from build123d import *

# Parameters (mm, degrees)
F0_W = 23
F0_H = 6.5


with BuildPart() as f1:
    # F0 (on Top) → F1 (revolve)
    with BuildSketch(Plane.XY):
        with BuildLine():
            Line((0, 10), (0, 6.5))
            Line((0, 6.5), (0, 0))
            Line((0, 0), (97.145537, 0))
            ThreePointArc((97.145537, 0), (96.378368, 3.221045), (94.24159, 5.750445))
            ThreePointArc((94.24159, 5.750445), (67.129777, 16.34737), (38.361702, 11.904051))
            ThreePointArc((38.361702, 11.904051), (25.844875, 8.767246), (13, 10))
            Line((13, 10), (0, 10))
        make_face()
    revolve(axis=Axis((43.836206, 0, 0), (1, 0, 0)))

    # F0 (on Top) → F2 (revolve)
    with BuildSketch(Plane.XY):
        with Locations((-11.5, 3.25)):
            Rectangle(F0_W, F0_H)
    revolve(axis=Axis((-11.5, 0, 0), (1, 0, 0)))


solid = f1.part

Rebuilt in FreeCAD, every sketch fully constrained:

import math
import FreeCAD as App
import Part
import Sketcher

V = App.Vector

doc = App.newDocument("Part")
body = doc.addObject("PartDesign::Body", "Body")

sketch1 = body.newObject("Sketcher::SketchObject", "Sketch")
sketch1.AttachmentSupport = (doc.getObject("XY_Plane"), [""])
sketch1.MapMode = "FlatFace"
sketch1.addGeometry(Part.LineSegment(V(0, 10, 0), V(0, 0, 0)), False)
sketch1.addGeometry(Part.LineSegment(V(0, 0, 0), V(97, 0, 0)), False)
sketch1.addGeometry(Part.ArcOfCircle(Part.Circle(V(90, 0, 0), V(0, 0, 1), 7), math.radians(0), math.radians(54)), False)
sketch1.addGeometry(Part.ArcOfCircle(Part.Circle(V(61, -39, 0), V(0, 0, 1), 56), math.radians(54), math.radians(114)), False)
sketch1.addGeometry(Part.ArcOfCircle(Part.Circle(V(23, 47, 0), V(0, 0, 1), 38), math.radians(-105), math.radians(-66)), False)
sketch1.addGeometry(Part.LineSegment(V(13, 10, 0), V(0, 10, 0)), False)
sketch1.addConstraint(Sketcher.Constraint("Coincident", 0, 2, 1, 1))
sketch1.addConstraint(Sketcher.Constraint("Coincident", 1, 2, 2, 1))
sketch1.addConstraint(Sketcher.Constraint("Tangent", 2, 2, 3, 1))
sketch1.addConstraint(Sketcher.Constraint("Tangent", 3, 2, 4, 2))
sketch1.addConstraint(Sketcher.Constraint("Coincident", 4, 1, 5, 1))
sketch1.addConstraint(Sketcher.Constraint("Coincident", 5, 2, 0, 1))
sketch1.addConstraint(Sketcher.Constraint("Vertical", 0))
sketch1.addConstraint(Sketcher.Constraint("Horizontal", 1))
sketch1.addConstraint(Sketcher.Constraint("Horizontal", 5))
sketch1.addConstraint(Sketcher.Constraint("Coincident", 0, 2, -1, 1))
sketch1.addConstraint(Sketcher.Constraint("Radius", 3, 56.0))
sketch1.addConstraint(Sketcher.Constraint("DistanceX", 5, 2, 5, 1, 13.0))
sketch1.addConstraint(Sketcher.Constraint("DistanceY", 0, 2, 0, 1, 10.0))
sketch1.addConstraint(Sketcher.Constraint("DistanceX", -1, 1, 3, 3, 60.999999))
sketch1.addConstraint(Sketcher.Constraint("DistanceX", -1, 1, 4, 3, 23.0))
sketch1.addConstraint(Sketcher.Constraint("Radius", 2, 7.145532))
sketch1.addConstraint(Sketcher.Constraint("Radius", 4, 37.999994))
sketch1.addConstraint(Sketcher.Constraint("DistanceX", 1, 1, 1, 2, 97.145537))
revolution = body.newObject("PartDesign::Revolution", "Revolution")
revolution.Profile = sketch1
revolution.ReferenceAxis = (sketch1, ["H_Axis"])
revolution.Angle = 360

sketch2 = body.newObject("Sketcher::SketchObject", "Sketch001")
sketch2.AttachmentSupport = (doc.getObject("XY_Plane"), [""])
sketch2.MapMode = "FlatFace"
sketch2.addGeometry(Part.LineSegment(V(-23, 6, 0), V(-23, 0, 0)), False)
sketch2.addGeometry(Part.LineSegment(V(-23, 0, 0), V(0, 0, 0)), False)
sketch2.addGeometry(Part.LineSegment(V(0, 0, 0), V(0, 6, 0)), False)
sketch2.addGeometry(Part.LineSegment(V(0, 6, 0), V(-23, 6, 0)), False)
sketch2.addConstraint(Sketcher.Constraint("Coincident", 0, 2, 1, 1))
sketch2.addConstraint(Sketcher.Constraint("Coincident", 1, 2, 2, 1))
sketch2.addConstraint(Sketcher.Constraint("Coincident", 2, 2, 3, 1))
sketch2.addConstraint(Sketcher.Constraint("Coincident", 3, 2, 0, 1))
sketch2.addConstraint(Sketcher.Constraint("Vertical", 0))
sketch2.addConstraint(Sketcher.Constraint("Horizontal", 1))
sketch2.addConstraint(Sketcher.Constraint("Vertical", 2))
sketch2.addConstraint(Sketcher.Constraint("Horizontal", 3))
sketch2.addConstraint(Sketcher.Constraint("Coincident", 1, 2, -1, 1))
sketch2.addConstraint(Sketcher.Constraint("DistanceX", 1, 1, 1, 2, 23.0))
sketch2.addConstraint(Sketcher.Constraint("DistanceY", 0, 2, 0, 1, 6.5))
revolution2 = body.newObject("PartDesign::Revolution", "Revolution001")
revolution2.Profile = sketch2
revolution2.ReferenceAxis = (sketch2, ["H_Axis"])
revolution2.Angle = 360

doc.recompute()
